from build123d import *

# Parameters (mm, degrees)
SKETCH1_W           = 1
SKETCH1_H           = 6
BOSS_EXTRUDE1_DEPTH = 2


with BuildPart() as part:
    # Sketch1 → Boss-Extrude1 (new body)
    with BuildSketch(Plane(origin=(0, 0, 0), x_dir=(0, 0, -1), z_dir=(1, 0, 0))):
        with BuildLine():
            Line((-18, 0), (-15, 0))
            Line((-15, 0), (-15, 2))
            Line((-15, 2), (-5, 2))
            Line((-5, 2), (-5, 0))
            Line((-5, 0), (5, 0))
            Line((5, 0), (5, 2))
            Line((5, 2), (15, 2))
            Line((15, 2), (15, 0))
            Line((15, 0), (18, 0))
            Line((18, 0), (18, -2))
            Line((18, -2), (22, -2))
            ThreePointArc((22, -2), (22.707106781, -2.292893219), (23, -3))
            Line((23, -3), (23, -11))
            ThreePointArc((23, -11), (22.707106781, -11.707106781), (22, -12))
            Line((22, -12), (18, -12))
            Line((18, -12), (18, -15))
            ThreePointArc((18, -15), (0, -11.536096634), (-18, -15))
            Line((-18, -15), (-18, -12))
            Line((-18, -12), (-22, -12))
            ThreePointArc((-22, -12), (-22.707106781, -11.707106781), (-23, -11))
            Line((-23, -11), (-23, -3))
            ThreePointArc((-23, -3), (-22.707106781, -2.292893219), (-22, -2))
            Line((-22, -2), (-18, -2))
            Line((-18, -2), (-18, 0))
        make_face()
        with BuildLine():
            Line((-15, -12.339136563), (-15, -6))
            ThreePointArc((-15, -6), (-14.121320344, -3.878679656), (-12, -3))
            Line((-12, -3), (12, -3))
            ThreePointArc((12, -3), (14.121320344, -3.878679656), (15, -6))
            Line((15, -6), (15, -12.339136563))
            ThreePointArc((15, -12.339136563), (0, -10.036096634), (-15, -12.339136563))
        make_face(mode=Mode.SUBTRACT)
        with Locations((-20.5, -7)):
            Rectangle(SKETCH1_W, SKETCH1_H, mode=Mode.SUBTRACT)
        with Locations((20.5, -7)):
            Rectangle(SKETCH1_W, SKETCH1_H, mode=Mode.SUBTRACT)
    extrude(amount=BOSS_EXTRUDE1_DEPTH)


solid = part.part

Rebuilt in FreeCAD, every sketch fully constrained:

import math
import FreeCAD as App
import Part
import Sketcher
Q = App.Units.Quantity

doc = App.newDocument("Part")
body = doc.addObject("PartDesign::Body", "Body")

# Sketch on YZ plane
sketch1 = doc.addObject("Sketcher::SketchObject", "Sketch")
body.addObject(sketch1)
sketch1.AttachmentSupport = (doc.YZ_Plane, [""])
sketch1.MapMode = "FlatFace"
sketch1.addGeometry([
    Part.LineSegment(App.Vector(0, 15, 0), App.Vector(0, 18, 0)),  # 0
    Part.LineSegment(App.Vector(0, 18, 0), App.Vector(-2, 18, 0)),  # 1
    Part.LineSegment(App.Vector(-2, 18, 0), App.Vector(-2, 22, 0)),  # 2
    Part.ArcOfCircle(Part.Circle(App.Vector(-3, 22, 0), App.Vector(0, 0, 1), 1), math.radians(0), math.radians(90)),  # 3
    Part.LineSegment(App.Vector(-3, 23, 0), App.Vector(-11, 23, 0)),  # 4
    Part.ArcOfCircle(Part.Circle(App.Vector(-11, 22, 0), App.Vector(0, 0, 1), 1), math.radians(90), math.radians(180)),  # 5
    Part.LineSegment(App.Vector(-12, 22, 0), App.Vector(-12, 18, 0)),  # 6
    Part.LineSegment(App.Vector(-12, 18, 0), App.Vector(-15, 18, 0)),  # 7
    Part.ArcOfCircle(Part.Circle(App.Vector(-60, 0, 0), App.Vector(0, 0, 1), 48.5), math.radians(-22), math.radians(22)),  # 8
    Part.LineSegment(App.Vector(-15, -18, 0), App.Vector(-12, -18, 0)),  # 9
    Part.LineSegment(App.Vector(-12, -18, 0), App.Vector(-12, -22, 0)),  # 10
    Part.ArcOfCircle(Part.Circle(App.Vector(-11, -22, 0), App.Vector(0, 0, 1), 1), math.radians(-180), math.radians(-90)),  # 11
    Part.LineSegment(App.Vector(-11, -23, 0), App.Vector(-3, -23, 0)),  # 12
    Part.ArcOfCircle(Part.Circle(App.Vector(-3, -22, 0), App.Vector(0, 0, 1), 1), math.radians(-90), math.radians(0)),  # 13
    Part.LineSegment(App.Vector(-2, -22, 0), App.Vector(-2, -18, 0)),  # 14
    Part.LineSegment(App.Vector(-2, -18, 0), App.Vector(0, -18, 0)),  # 15
    Part.LineSegment(App.Vector(0, -18, 0), App.Vector(0, -15, 0)),  # 16
    Part.LineSegment(App.Vector(0, -15, 0), App.Vector(2, -15, 0)),  # 17
    Part.LineSegment(App.Vector(2, -15, 0), App.Vector(2, -5, 0)),  # 18
    Part.LineSegment(App.Vector(2, -5, 0), App.Vector(0, -5, 0)),  # 19
    Part.LineSegment(App.Vector(0, -5, 0), App.Vector(0, 5, 0)),  # 20
    Part.LineSegment(App.Vector(0, 5, 0), App.Vector(2, 5, 0)),  # 21
    Part.LineSegment(App.Vector(2, 5, 0), App.Vector(2, 15, 0)),  # 22
    Part.LineSegment(App.Vector(2, 15, 0), App.Vector(0, 15, 0)),  # 23
    Part.LineSegment(App.Vector(-10, -20, 0), App.Vector(-4, -20, 0)),  # 24
    Part.LineSegment(App.Vector(-4, -20, 0), App.Vector(-4, -21, 0)),  # 25
    Part.LineSegment(App.Vector(-4, -21, 0), App.Vector(-10, -21, 0)),  # 26
    Part.LineSegment(App.Vector(-10, -21, 0), App.Vector(-10, -20, 0)),  # 27
    Part.LineSegment(App.Vector(-12.3, 15, 0), App.Vector(-6, 15, 0)),  # 28
    Part.ArcOfCircle(Part.Circle(App.Vector(-6, 12, 0), App.Vector(0, 0, 1), 3), math.radians(0), math.radians(90)),  # 29
    Part.LineSegment(App.Vector(-3, 12, 0), App.Vector(-3, -12, 0)),  # 30
    Part.ArcOfCircle(Part.Circle(App.Vector(-6, -12, 0), App.Vector(0, 0, 1), 3), math.radians(-90), math.radians(0)),  # 31
    Part.LineSegment(App.Vector(-6, -15, 0), App.Vector(-12.3, -15, 0)),  # 32
    Part.ArcOfCircle(Part.Circle(App.Vector(-60, 0, 0), App.Vector(0, 0, 1), 50), math.radians(-17), math.radians(17)),  # 33
    Part.LineSegment(App.Vector(-10, 21, 0), App.Vector(-4, 21, 0)),  # 34
    Part.LineSegment(App.Vector(-4, 21, 0), App.Vector(-4, 20, 0)),  # 35
    Part.LineSegment(App.Vector(-4, 20, 0), App.Vector(-10, 20, 0)),  # 36
    Part.LineSegment(App.Vector(-10, 20, 0), App.Vector(-10, 21, 0)),  # 37
], False)
sketch1.addConstraint([
    Sketcher.Constraint("Coincident", 0, 2, 1, 1),
    Sketcher.Constraint("Coincident", 1, 2, 2, 1),
    Sketcher.Constraint("Tangent", 2, 2, 3, 1),
    Sketcher.Constraint("Tangent", 3, 2, 4, 1),
    Sketcher.Constraint("Tangent", 4, 2, 5, 1),
    Sketcher.Constraint("Tangent", 5, 2, 6, 1),
    Sketcher.Constraint("Coincident", 6, 2, 7, 1),
    Sketcher.Constraint("Coincident", 7, 2, 8, 2),
    Sketcher.Constraint("Coincident", 8, 1, 9, 1),
    Sketcher.Constraint("Coincident", 9, 2, 10, 1),
    Sketcher.Constraint("Tangent", 10, 2, 11, 1),
    Sketcher.Constraint("Tangent", 11, 2, 12, 1),
    Sketcher.Constraint("Tangent", 12, 2, 13, 1),
    Sketcher.Constraint("Tangent", 13, 2, 14, 1),
    Sketcher.Constraint("Coincident", 14, 2, 15, 1),
    Sketcher.Constraint("Coincident", 15, 2, 16, 1),
    Sketcher.Constraint("Coincident", 16, 2, 17, 1),
    Sketcher.Constraint("Coincident", 17, 2, 18, 1),
    Sketcher.Constraint("Coincident", 18, 2, 19, 1),
    Sketcher.Constraint("Coincident", 19, 2, 20, 1),
    Sketcher.Constraint("Coincident", 20, 2, 21, 1),
    Sketcher.Constraint("Coincident", 21, 2, 22, 1),
    Sketcher.Constraint("Coincident", 22, 2, 23, 1),
    Sketcher.Constraint("Coincident", 23, 2, 0, 1),
    Sketcher.Constraint("Coincident", 24, 2, 25, 1),
    Sketcher.Constraint("Coincident", 25, 2, 26, 1),
    Sketcher.Constraint("Coincident", 26, 2, 27, 1),
    Sketcher.Constraint("Coincident", 27, 2, 24, 1),
    Sketcher.Constraint("Tangent", 28, 2, 29, 2),
    Sketcher.Constraint("Tangent", 29, 1, 30, 1),
    Sketcher.Constraint("Tangent", 30, 2, 31, 2),
    Sketcher.Constraint("Tangent", 31, 1, 32, 1),
    Sketcher.Constraint("Coincident", 32, 2, 33, 1),
    Sketcher.Constraint("Coincident", 33, 2, 28, 1),
    Sketcher.Constraint("Coincident", 34, 2, 35, 1),
    Sketcher.Constraint("Coincident", 35, 2, 36, 1),
    Sketcher.Constraint("Coincident", 36, 2, 37, 1),
    Sketcher.Constraint("Coincident", 37, 2, 34, 1),
    Sketcher.Constraint("Vertical", 0),
    Sketcher.Constraint("Horizontal", 1),
    Sketcher.Constraint("Vertical", 2),
    Sketcher.Constraint("Horizontal", 4),
    Sketcher.Constraint("Vertical", 6),
    Sketcher.Constraint("Horizontal", 7),
    Sketcher.Constraint("Horizontal", 9),
    Sketcher.Constraint("Vertical", 10),
    Sketcher.Constraint("Horizontal", 12),
    Sketcher.Constraint("Vertical", 14),
    Sketcher.Constraint("Horizontal", 15),
    Sketcher.Constraint("Vertical", 16),
    Sketcher.Constraint("Horizontal", 17),
    Sketcher.Constraint("Vertical", 18),
    Sketcher.Constraint("Horizontal", 19),
    Sketcher.Constraint("Vertical", 20),
    Sketcher.Constraint("Horizontal", 21),
    Sketcher.Constraint("Vertical", 22),
    Sketcher.Constraint("Horizontal", 23),
    Sketcher.Constraint("Horizontal", 24),
    Sketcher.Constraint("Vertical", 25),
    Sketcher.Constraint("Horizontal", 26),
    Sketcher.Constraint("Vertical", 27),
    Sketcher.Constraint("Horizontal", 28),
    Sketcher.Constraint("Vertical", 30),
    Sketcher.Constraint("Horizontal", 32),
    Sketcher.Constraint("Horizontal", 34),
    Sketcher.Constraint("Vertical", 35),
    Sketcher.Constraint("Horizontal", 36),
    Sketcher.Constraint("Vertical", 37),
    Sketcher.Constraint("Coincident", 33, 3, 8, 3),
    Sketcher.Constraint("Equal", 3, 5),
    Sketcher.Constraint("Equal", 5, 11),
    Sketcher.Constraint("Equal", 11, 13),
    Sketcher.Constraint("Equal", 29, 31),
    Sketcher.Constraint("Symmetric", 0, 2, 15, 2, -1, 1),
    Sketcher.Constraint("Symmetric", 19, 2, 20, 2, -1, 1),
    Sketcher.Constraint("Symmetric", 5, 3, 11, 3, -1),
    Sketcher.Constraint("Symmetric", 7, 2, 8, 1, -1),
    Sketcher.Constraint("Symmetric", 17, 2, 22, 2, -1),
    Sketcher.Constraint("Symmetric", 25, 2, 34, 2, -1),
    Sketcher.Constraint("Symmetric", 27, 2, 36, 2, -1),
    Sketcher.Constraint("PointOnObject", 0, 2, -2),
    Sketcher.Constraint("Horizontal", 1, 2, 6, 2),
    Sketcher.Constraint("Horizontal", 23, 2, 28, 2),
    Sketcher.Constraint("Horizontal", 17, 2, 31, 1),
    Sketcher.Constraint("Vertical", 3, 3, 13, 3),
    Sketcher.Constraint("Vertical", 12, 2, 29, 1),
    Sketcher.Constraint("Equal", 15, 17),
    Sketcher.Constraint("Equal", 9, 0),
    Sketcher.Constraint("Equal", 18, 20),
    Sketcher.Constraint("Radius", 3, Q("1 mm")),
    Sketcher.Constraint("Radius", 29, Q("3 mm")),
    Sketcher.Constraint("Radius", 33, Q("50 mm")),
    Sketcher.Constraint("Radius", 8, Q("48.5 mm")),
    Sketcher.Constraint("DistanceX", 1, 2, 1, 1, Q("2 mm")),
    Sketcher.Constraint("DistanceX", 4, 2, 4, 1, Q("8 mm")),
    Sketcher.Constraint("DistanceX", 7, 2, 7, 1, Q("3 mm")),
    Sketcher.Constraint("DistanceX", 24, 1, 24, 2, Q("6 mm")),
    Sketcher.Constraint("DistanceY", 2, 1, 2, 2, Q("4 mm")),
    Sketcher.Constraint("DistanceY", 18, 1, 18, 2, Q("10 mm")),
    Sketcher.Constraint("DistanceY", 25, 2, 25, 1, Q("1 mm")),
    Sketcher.Constraint("DistanceX", 24, 2, -1, 1, Q("4 mm")),
    Sketcher.Constraint("DistanceY", 24, 2, -1, 1, Q("20 mm")),
])
pad1 = doc.addObject("PartDesign::Pad", "Pad")
body.addObject(pad1)
pad1.Profile = sketch1
pad1.Length = 2

doc.recompute()
